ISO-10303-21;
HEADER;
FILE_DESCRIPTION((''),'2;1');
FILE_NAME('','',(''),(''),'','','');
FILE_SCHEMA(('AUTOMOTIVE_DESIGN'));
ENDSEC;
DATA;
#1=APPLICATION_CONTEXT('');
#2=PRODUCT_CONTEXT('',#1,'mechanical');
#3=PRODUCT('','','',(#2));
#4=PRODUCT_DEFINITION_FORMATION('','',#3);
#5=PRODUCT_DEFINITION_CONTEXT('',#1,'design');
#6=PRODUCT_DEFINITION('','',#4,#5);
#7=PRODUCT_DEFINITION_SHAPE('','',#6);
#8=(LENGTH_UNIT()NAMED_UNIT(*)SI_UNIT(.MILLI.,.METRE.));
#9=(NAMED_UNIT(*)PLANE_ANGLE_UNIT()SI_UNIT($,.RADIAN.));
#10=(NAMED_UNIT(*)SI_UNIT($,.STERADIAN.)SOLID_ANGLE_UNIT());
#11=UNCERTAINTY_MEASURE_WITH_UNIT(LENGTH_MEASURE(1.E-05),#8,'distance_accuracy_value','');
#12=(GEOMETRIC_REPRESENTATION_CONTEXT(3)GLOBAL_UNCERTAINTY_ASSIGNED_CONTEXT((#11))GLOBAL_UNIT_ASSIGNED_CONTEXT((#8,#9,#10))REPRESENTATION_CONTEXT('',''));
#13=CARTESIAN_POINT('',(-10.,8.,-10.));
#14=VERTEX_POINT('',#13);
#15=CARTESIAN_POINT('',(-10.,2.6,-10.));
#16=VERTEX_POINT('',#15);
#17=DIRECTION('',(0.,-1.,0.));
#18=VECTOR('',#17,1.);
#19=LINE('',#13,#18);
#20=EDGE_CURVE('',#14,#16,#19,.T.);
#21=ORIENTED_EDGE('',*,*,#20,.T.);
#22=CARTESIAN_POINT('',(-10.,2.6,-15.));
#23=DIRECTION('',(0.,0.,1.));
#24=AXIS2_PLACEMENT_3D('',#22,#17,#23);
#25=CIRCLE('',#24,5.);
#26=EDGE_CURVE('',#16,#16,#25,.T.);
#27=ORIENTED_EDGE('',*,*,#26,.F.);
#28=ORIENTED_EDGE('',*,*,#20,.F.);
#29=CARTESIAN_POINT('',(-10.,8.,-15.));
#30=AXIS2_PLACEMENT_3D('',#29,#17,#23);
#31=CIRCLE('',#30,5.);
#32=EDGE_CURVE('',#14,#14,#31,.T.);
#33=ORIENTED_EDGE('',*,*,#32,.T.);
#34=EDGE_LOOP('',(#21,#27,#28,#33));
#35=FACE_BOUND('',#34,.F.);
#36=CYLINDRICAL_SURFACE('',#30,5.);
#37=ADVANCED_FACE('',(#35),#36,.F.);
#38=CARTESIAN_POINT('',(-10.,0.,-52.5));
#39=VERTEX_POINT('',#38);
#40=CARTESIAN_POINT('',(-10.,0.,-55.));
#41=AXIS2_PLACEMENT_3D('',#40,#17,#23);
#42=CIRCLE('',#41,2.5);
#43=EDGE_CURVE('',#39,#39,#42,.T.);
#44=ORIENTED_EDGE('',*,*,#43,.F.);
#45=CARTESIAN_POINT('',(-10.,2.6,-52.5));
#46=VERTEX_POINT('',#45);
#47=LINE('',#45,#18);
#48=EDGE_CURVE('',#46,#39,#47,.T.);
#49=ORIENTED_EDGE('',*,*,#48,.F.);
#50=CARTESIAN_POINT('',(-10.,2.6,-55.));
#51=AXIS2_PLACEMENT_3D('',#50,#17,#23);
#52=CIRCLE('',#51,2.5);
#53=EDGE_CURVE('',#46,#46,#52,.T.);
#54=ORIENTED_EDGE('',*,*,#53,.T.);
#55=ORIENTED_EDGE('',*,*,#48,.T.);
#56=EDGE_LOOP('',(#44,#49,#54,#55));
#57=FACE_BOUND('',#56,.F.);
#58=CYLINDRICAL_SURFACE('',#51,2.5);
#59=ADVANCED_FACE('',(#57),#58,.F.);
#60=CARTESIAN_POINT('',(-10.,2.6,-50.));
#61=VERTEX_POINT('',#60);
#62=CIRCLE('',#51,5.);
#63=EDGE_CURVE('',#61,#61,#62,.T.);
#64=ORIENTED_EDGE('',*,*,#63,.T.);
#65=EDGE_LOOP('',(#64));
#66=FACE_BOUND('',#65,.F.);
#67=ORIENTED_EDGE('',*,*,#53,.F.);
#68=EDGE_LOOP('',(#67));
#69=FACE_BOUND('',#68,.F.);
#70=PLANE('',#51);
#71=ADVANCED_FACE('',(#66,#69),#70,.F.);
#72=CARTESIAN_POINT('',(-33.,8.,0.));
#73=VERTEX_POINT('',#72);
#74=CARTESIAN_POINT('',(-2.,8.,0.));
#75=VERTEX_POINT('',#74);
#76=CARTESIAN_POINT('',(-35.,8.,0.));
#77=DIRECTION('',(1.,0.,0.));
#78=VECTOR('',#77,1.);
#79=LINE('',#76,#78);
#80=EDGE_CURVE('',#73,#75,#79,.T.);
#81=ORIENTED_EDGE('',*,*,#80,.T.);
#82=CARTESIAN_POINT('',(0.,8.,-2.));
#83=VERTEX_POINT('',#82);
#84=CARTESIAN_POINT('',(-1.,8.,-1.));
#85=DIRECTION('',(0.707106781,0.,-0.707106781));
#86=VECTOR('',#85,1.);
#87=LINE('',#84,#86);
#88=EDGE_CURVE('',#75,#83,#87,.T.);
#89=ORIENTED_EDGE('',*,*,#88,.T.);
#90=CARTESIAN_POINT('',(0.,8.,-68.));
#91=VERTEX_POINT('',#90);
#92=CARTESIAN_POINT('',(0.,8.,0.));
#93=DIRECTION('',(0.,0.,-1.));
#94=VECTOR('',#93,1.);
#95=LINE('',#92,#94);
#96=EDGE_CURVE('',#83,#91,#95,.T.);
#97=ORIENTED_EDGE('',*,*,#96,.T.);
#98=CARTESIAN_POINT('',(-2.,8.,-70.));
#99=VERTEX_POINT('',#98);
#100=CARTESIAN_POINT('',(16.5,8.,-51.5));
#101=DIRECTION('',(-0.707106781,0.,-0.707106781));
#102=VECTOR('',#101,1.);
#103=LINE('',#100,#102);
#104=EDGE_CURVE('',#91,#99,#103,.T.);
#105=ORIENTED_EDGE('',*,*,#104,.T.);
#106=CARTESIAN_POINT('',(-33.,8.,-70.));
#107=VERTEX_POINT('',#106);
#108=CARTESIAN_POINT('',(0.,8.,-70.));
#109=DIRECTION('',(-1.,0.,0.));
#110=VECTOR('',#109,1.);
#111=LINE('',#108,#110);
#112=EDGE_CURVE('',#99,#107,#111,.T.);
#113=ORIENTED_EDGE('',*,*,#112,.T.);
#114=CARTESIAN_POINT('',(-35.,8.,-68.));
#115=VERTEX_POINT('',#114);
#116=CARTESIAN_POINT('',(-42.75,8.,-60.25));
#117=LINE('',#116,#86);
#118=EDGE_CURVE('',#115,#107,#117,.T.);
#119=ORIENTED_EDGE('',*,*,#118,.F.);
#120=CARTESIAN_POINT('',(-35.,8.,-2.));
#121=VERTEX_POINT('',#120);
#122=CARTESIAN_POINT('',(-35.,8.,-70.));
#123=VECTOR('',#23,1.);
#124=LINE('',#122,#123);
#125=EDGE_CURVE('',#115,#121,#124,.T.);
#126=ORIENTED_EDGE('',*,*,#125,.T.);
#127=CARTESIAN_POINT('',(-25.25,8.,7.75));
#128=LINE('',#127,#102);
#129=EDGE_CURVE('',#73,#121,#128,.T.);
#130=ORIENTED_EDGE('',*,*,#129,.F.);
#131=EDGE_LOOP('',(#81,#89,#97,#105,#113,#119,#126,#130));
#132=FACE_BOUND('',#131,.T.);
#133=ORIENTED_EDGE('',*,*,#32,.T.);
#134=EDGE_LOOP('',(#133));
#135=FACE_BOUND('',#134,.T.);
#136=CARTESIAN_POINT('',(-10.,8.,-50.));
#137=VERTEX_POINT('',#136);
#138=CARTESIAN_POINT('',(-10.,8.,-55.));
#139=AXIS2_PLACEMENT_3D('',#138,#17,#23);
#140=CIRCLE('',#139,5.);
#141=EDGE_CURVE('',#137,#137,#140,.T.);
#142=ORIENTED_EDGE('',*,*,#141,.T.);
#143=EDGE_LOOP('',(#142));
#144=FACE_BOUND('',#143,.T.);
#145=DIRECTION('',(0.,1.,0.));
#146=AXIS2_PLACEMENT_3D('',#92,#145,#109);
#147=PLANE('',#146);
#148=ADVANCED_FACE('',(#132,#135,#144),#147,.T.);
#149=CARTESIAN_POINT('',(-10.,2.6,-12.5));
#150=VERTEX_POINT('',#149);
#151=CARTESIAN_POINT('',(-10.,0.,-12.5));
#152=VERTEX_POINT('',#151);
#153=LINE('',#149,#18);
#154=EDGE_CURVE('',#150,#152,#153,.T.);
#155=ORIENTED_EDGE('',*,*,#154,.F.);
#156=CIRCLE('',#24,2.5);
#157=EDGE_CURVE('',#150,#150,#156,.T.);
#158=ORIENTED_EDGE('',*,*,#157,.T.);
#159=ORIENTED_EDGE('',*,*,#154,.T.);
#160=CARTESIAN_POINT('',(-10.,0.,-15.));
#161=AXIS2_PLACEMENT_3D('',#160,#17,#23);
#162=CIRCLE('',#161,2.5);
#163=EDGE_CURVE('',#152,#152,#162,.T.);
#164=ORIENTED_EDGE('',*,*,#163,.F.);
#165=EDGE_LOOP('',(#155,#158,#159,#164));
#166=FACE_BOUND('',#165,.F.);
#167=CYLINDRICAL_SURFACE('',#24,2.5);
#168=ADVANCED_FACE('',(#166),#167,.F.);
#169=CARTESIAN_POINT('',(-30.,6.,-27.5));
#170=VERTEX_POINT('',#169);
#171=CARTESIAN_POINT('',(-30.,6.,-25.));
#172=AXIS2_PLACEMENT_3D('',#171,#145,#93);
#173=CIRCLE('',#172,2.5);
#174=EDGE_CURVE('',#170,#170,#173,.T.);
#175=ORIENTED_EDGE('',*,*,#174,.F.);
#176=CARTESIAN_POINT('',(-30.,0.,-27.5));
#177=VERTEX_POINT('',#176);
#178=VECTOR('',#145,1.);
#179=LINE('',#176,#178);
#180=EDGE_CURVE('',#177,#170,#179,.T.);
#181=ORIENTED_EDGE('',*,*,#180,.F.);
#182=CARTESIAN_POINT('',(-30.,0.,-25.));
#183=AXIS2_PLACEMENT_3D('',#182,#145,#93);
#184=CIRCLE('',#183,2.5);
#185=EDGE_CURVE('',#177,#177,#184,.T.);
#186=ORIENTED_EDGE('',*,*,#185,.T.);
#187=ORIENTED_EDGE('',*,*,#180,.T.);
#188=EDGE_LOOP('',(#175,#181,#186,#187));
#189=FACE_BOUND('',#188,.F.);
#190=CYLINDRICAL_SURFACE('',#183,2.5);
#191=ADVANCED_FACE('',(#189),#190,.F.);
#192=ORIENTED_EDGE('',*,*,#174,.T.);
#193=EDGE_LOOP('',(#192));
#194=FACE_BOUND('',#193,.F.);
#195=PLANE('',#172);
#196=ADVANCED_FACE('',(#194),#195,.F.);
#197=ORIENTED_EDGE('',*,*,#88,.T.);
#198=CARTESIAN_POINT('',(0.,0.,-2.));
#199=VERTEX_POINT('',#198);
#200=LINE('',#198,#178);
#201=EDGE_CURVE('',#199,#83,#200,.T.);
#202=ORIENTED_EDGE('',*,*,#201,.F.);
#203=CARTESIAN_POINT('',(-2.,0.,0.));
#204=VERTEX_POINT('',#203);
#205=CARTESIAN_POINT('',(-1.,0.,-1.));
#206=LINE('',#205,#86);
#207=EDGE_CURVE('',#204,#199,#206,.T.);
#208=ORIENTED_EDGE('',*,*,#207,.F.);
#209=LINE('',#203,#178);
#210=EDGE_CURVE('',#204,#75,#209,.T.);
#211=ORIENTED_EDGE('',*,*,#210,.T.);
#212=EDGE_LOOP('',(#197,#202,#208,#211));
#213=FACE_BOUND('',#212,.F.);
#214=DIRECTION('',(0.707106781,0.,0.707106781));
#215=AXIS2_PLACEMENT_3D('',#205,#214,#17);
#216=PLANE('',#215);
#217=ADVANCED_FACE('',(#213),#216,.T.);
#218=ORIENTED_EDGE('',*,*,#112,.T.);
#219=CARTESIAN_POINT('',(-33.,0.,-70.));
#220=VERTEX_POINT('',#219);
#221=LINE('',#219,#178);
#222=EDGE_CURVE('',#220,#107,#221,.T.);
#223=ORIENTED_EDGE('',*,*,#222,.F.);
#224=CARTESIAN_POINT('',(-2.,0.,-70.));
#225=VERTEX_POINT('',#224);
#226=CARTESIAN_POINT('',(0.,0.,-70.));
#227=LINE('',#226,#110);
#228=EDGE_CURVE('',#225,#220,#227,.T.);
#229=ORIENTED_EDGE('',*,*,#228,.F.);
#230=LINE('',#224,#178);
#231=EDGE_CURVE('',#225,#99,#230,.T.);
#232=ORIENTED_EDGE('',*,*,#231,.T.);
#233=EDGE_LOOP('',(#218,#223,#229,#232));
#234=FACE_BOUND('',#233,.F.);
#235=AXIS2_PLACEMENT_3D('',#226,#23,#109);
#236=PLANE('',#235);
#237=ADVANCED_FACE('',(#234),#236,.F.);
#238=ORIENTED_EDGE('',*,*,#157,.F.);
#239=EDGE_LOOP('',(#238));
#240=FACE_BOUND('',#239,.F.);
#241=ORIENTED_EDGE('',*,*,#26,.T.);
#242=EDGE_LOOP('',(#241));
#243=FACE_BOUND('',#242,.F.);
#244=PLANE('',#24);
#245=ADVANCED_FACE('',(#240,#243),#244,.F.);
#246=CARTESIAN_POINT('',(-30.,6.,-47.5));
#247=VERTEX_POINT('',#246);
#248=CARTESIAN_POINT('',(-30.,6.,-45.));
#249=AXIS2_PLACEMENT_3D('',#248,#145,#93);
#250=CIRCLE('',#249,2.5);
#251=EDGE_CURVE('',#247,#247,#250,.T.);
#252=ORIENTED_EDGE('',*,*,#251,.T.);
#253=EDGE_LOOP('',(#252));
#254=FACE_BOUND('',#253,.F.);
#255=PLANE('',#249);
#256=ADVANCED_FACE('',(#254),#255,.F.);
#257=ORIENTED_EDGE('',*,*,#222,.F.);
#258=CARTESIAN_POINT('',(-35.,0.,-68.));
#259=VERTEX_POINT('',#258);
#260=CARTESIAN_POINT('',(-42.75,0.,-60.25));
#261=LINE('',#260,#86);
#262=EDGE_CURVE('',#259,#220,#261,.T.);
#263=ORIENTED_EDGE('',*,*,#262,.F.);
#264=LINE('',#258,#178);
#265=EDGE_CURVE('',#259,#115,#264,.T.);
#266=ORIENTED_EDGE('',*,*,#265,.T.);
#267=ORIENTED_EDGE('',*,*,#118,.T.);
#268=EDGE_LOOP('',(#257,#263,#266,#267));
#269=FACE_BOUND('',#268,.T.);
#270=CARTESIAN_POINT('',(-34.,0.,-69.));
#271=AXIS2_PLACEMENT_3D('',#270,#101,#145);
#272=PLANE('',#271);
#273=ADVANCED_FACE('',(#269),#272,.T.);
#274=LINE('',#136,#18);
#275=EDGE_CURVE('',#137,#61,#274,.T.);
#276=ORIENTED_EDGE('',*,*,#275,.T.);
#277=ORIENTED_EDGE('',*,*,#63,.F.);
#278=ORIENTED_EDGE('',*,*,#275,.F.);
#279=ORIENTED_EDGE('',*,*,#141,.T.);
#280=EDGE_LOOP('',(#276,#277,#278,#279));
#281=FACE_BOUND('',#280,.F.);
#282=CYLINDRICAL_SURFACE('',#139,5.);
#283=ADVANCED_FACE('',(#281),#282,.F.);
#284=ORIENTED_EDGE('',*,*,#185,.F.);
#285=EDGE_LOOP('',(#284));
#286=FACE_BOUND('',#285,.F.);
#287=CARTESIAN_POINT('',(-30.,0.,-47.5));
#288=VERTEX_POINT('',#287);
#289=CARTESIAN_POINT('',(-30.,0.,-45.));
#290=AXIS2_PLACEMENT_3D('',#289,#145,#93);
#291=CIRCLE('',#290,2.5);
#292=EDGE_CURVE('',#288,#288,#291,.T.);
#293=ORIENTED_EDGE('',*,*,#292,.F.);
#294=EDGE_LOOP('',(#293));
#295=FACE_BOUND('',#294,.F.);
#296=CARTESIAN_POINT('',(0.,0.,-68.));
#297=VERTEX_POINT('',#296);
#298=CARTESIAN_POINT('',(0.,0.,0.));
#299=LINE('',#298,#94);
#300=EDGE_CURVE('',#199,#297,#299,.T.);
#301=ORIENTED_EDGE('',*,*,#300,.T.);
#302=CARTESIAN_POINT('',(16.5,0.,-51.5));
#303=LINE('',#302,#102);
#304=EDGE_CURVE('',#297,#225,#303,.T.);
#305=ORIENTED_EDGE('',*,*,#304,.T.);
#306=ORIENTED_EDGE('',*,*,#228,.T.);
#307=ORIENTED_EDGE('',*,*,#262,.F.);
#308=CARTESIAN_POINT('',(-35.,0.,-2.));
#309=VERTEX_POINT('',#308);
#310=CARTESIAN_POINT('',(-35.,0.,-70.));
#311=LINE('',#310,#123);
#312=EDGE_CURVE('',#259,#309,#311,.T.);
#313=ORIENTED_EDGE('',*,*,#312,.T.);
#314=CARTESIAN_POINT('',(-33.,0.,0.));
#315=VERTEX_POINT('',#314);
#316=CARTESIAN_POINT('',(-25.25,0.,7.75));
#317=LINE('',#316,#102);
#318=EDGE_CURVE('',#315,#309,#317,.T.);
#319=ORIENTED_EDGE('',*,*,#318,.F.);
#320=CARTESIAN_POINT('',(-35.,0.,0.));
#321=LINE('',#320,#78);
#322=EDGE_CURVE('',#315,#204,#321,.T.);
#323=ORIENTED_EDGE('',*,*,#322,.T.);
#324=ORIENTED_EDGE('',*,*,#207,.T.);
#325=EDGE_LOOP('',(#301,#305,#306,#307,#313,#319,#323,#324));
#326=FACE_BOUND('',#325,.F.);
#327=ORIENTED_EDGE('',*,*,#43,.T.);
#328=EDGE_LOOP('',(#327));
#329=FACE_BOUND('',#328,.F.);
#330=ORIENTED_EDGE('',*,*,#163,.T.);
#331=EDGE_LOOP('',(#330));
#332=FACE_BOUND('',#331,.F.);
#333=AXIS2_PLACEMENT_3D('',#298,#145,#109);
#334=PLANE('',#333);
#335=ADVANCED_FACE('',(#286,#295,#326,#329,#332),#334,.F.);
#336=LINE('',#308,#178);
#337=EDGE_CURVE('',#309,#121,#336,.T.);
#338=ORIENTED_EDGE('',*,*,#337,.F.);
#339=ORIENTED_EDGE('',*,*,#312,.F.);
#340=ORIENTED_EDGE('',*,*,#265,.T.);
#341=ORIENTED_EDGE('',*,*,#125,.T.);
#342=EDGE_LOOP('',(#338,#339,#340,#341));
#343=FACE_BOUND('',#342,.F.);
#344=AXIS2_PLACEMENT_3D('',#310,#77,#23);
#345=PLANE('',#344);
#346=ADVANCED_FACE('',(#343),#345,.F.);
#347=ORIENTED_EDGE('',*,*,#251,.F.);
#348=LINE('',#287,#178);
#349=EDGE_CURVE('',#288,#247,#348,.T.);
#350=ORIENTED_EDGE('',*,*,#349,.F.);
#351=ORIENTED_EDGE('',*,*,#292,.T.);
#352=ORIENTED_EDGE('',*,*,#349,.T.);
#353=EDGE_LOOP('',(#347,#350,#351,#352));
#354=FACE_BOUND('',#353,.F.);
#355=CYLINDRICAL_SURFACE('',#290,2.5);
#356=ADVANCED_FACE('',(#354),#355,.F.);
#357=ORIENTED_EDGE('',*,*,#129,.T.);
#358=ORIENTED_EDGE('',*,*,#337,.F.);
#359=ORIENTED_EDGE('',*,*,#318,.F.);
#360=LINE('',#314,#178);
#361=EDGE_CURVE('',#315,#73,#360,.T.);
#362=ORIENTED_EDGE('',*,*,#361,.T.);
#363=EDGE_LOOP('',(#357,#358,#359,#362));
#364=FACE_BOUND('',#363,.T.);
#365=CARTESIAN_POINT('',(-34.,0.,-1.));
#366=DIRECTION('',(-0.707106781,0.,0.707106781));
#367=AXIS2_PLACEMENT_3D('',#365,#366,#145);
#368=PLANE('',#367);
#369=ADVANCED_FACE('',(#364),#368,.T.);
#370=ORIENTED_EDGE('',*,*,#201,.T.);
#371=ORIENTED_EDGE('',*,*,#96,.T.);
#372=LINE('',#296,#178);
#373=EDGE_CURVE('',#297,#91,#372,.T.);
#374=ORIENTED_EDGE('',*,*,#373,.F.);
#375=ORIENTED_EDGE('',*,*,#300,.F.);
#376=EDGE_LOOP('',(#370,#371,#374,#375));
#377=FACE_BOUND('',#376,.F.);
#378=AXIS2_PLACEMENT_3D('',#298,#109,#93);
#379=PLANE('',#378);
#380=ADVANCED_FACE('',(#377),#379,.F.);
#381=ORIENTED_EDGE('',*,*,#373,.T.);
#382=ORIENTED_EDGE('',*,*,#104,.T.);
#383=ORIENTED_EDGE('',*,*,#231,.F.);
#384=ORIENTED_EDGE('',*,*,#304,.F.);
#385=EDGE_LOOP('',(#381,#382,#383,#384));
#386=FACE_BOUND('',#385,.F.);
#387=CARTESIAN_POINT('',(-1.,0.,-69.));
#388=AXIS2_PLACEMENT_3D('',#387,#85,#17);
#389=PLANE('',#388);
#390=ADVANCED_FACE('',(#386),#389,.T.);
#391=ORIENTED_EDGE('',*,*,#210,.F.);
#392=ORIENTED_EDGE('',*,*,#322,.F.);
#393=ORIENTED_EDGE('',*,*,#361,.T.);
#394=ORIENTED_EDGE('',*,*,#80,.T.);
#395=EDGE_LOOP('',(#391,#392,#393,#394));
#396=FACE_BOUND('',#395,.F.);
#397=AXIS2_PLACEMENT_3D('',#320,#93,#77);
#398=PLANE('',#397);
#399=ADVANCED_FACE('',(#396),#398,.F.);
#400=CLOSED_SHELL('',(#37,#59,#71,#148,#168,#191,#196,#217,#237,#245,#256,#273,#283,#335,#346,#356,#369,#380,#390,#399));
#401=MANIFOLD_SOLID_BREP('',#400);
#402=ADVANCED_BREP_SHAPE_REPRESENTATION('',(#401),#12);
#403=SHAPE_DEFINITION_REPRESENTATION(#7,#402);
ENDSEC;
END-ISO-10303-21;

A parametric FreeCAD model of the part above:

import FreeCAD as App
import Part
import Sketcher
from FreeCAD import Vector
Q = App.Units.Quantity


def edges_at(feature, points):
    """Names of the edges that pass closest to the given points."""
    edges = feature.Shape.Edges
    near = lambda p: min(range(len(edges)), key=lambda i: edges[i].distToShape(Part.Vertex(*p))[0])
    return sorted({f"Edge{near(p) + 1}" for p in points})

doc = App.newDocument("Part")
params = doc.addObject("Spreadsheet::Sheet", "Params")
for row, (alias, value) in enumerate([
    ("sketch1_width", "35 mm"),
    ("sketch1_height", "70 mm"),
    ("pad1_length", "8 mm"),
    ("sketch2_diameter", "5 mm"),
    ("hole_diameter", "5 mm"),
    ("hole_depth", "6 mm"),
    ("sketch3_diameter", "5 mm"),
    ("hole2_diameter", "5 mm"),
    ("hole2_cbore_diameter", "10 mm"),
    ("hole2_cbore_depth", "5.4 mm"),
    ("chamfer_size", "2 mm"),
], start=1):
    params.set(f"A{row}", alias)
    params.set(f"B{row}", "=" + value)
    params.setAlias(f"B{row}", alias)

body = doc.addObject("PartDesign::Body", "Body")

# Sketch on XZ plane
sketch1 = doc.addObject("Sketcher::SketchObject", "Sketch")
body.addObject(sketch1)
sketch1.AttachmentSupport = (doc.XZ_Plane, [""])
sketch1.MapMode = "FlatFace"
sketch1.addGeometry([
    Part.LineSegment(Vector(-35, 0, 0), Vector(0, 0, 0)),
    Part.LineSegment(Vector(0, 0, 0), Vector(0, -70, 0)),
    Part.LineSegment(Vector(0, -70, 0), Vector(-35, -70, 0)),
    Part.LineSegment(Vector(-35, -70, 0), Vector(-35, 0, 0)),
], False)
sketch1.addConstraint([
    Sketcher.Constraint("Coincident", 0, 2, 1, 1),
    Sketcher.Constraint("Coincident", 1, 2, 2, 1),
    Sketcher.Constraint("Coincident", 2, 2, 3, 1),
    Sketcher.Constraint("Coincident", 3, 2, 0, 1),
    Sketcher.Constraint("Horizontal", 0),
    Sketcher.Constraint("Vertical", 1),
    Sketcher.Constraint("Horizontal", 2),
    Sketcher.Constraint("Vertical", 3),
    Sketcher.Constraint("Coincident", 0, 2, -1, 1),
    Sketcher.Constraint("DistanceX", 0, 1, 0, 2, Q("35 mm")),
    Sketcher.Constraint("DistanceY", 1, 2, 1, 1, Q("70 mm")),
])
sketch1.setExpression("Constraints[9]", "Params.sketch1_width")
sketch1.setExpression("Constraints[10]", "Params.sketch1_height")
pad1 = doc.addObject("PartDesign::Pad", "Pad")
body.addObject(pad1)
pad1.Profile = sketch1
pad1.setExpression("Length", "Params.pad1_length")
pad1.Reversed = True

# Sketch on XZ plane
sketch2 = doc.addObject("Sketcher::SketchObject", "Sketch001")
body.addObject(sketch2)
sketch2.AttachmentSupport = (doc.XZ_Plane, [""])
sketch2.MapMode = "FlatFace"
sketch2.addGeometry([
    Part.Circle(Vector(-30, -45, 0), Vector(0, 0, 1), 2.5),
    Part.Circle(Vector(-30, -25, 0), Vector(0, 0, 1), 2.5),
], False)
sketch2.addConstraint([
    Sketcher.Constraint("Equal", 0, 1),
    Sketcher.Constraint("Vertical", 0, 3, 1, 3),
    Sketcher.Constraint("Diameter", 0, Q("5 mm")),
    Sketcher.Constraint("DistanceX", 0, 3, -1, 1, Q("30 mm")),
    Sketcher.Constraint("DistanceY", 0, 3, -1, 1, Q("45 mm")),
    Sketcher.Constraint("DistanceY", 1, 3, -1, 1, Q("25 mm")),
])
sketch2.setExpression("Constraints[2]", "Params.sketch2_diameter")
doc.recompute()
hole = doc.addObject("PartDesign::Hole", "Hole")
body.addObject(hole)
hole.Profile = sketch2
hole.ThreadType = "None"
hole.setExpression("Diameter", "Params.hole_diameter")
hole.DepthType = "Dimension"
hole.setExpression("Depth", "Params.hole_depth")
hole.DrillPoint = "Flat"

# Sketch on XZ plane
sketch3 = doc.addObject("Sketcher::SketchObject", "Sketch002")
body.addObject(sketch3)
sketch3.AttachmentSupport = (doc.XZ_Plane, [""])
sketch3.MapMode = "FlatFace"
sketch3.AttachmentOffset = App.Placement(Vector(0, 0, -8), App.Rotation())
sketch3.addGeometry([
    Part.Circle(Vector(-10, -15, 0), Vector(0, 0, 1), 2.5),
    Part.Circle(Vector(-10, -55, 0), Vector(0, 0, 1), 2.5),
], False)
sketch3.addConstraint([
    Sketcher.Constraint("Equal", 0, 1),
    Sketcher.Constraint("Vertical", 0, 3, 1, 3),
    Sketcher.Constraint("Diameter", 0, Q("5 mm")),
    Sketcher.Constraint("DistanceX", 0, 3, -1, 1, Q("10 mm")),
    Sketcher.Constraint("DistanceY", 0, 3, -1, 1, Q("15 mm")),
    Sketcher.Constraint("DistanceY", 1, 3, -1, 1, Q("55 mm")),
])
sketch3.setExpression("Constraints[2]", "Params.sketch3_diameter")
doc.recompute()
hole2 = doc.addObject("PartDesign::Hole", "Hole001")
body.addObject(hole2)
hole2.Profile = sketch3
hole2.ThreadType = "None"
hole2.setExpression("Diameter", "Params.hole2_diameter")
hole2.DepthType = "ThroughAll"
hole2.HoleCutType = "Counterbore"
hole2.setExpression("HoleCutDiameter", "Params.hole2_cbore_diameter")
hole2.setExpression("HoleCutDepth", "Params.hole2_cbore_depth")
hole2.Reversed = True
doc.recompute()

chamfer = doc.addObject("PartDesign::Chamfer", "Chamfer")
body.addObject(chamfer)
chamfer.Base = (hole2, edges_at(hole2, [
    (-35, 4, 0),
    (0, 4, 0),
    (0, 4, -70),
    (-35, 4, -70),
]))
chamfer.setExpression("Size", "Params.chamfer_size")

doc.recompute()
